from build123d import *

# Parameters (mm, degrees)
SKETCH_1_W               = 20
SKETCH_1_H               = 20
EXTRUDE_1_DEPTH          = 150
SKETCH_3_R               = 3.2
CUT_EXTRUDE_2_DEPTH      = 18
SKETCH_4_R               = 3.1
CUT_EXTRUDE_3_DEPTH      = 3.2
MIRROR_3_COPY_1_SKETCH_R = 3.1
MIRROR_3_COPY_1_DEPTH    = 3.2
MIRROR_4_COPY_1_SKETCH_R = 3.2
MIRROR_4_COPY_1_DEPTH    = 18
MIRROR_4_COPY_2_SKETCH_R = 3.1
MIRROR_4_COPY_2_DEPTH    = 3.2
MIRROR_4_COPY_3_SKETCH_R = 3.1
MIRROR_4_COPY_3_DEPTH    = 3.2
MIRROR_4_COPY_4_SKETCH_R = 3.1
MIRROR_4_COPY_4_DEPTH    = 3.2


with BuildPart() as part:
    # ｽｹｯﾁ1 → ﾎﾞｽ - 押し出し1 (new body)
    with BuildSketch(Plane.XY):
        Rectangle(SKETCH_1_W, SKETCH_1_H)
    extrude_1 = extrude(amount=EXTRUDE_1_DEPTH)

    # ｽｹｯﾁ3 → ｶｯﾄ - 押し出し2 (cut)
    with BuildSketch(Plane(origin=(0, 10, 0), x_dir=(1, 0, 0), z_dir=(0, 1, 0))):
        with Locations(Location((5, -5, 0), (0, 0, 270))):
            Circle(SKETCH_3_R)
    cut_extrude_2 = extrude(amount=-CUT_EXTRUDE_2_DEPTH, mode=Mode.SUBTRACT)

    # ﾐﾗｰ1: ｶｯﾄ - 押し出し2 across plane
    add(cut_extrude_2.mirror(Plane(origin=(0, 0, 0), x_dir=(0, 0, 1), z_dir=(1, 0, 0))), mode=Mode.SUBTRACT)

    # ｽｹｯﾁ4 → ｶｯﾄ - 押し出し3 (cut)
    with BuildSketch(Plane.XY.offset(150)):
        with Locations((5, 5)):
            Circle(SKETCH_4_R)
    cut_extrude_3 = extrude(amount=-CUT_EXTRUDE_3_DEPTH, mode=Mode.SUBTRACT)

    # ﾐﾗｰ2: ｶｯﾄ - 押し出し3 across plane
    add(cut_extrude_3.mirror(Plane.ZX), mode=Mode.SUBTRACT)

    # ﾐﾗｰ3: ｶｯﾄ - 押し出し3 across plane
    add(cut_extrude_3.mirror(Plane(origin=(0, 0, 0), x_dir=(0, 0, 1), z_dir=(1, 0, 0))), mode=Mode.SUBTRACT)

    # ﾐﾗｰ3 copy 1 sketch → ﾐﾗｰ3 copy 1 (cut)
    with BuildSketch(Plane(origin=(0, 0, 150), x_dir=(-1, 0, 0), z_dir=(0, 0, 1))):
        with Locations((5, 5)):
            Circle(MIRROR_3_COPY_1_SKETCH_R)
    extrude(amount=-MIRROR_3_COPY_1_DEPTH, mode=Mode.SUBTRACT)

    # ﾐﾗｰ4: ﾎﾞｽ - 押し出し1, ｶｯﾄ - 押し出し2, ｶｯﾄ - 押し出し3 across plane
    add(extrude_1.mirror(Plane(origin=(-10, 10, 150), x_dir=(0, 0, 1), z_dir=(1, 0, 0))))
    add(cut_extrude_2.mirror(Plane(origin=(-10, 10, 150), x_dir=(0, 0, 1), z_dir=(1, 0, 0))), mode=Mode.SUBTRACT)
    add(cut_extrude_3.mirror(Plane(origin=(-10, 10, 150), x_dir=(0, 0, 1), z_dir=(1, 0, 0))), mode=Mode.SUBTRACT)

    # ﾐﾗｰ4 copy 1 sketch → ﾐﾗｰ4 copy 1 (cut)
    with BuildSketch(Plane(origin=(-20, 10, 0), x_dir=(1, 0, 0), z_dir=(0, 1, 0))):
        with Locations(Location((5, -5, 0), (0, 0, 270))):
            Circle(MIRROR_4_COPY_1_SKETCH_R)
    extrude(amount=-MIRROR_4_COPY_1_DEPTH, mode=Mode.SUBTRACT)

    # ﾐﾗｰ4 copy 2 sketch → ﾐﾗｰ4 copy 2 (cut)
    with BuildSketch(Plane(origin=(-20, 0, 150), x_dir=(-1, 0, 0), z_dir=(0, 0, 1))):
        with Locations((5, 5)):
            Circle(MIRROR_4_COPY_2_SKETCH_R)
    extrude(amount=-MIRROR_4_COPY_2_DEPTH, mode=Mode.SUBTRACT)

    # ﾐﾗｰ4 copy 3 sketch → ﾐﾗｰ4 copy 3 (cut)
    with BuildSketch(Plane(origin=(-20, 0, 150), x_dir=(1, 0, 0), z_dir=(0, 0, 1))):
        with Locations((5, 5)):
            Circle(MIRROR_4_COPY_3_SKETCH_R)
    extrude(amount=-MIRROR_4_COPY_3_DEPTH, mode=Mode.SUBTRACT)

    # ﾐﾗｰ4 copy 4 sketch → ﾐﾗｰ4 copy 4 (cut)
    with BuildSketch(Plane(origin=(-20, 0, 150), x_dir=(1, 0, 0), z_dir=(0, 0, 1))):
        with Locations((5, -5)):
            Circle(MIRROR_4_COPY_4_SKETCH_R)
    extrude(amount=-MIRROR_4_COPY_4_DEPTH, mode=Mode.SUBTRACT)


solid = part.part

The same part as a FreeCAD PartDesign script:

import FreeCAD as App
import Part
import Sketcher

V = App.Vector


def add_polygon(sketch, points):
    """Adds a closed chain of lines whose ends are joined by coincident constraints."""
    first, n = sketch.GeometryCount, len(points)
    for a, b in zip(points, points[1:] + points[:1]):
        sketch.addGeometry(Part.LineSegment(App.Vector(*a, 0), App.Vector(*b, 0)), False)
    for i in range(n):
        sketch.addConstraint(Sketcher.Constraint("Coincident", first + i, 2, first + (i + 1) % n, 1))

doc = App.newDocument("Part")
params = doc.addObject("Spreadsheet::Sheet", "Params")
for row, (alias, value) in enumerate([
    ("sketch1_width", "20 mm"),
    ("pad1_length", "150 mm"),
    ("sketch2_diameter", "6.4 mm"),
    ("pocket1_length", "18 mm"),
    ("sketch3_diameter", "6.2 mm"),
    ("pocket2_length", "3.2 mm"),
    ("sketch4_diameter", "6.2 mm"),
    ("pocket3_length", "3.2 mm"),
    ("sketch5_diameter", "6.4 mm"),
    ("pocket4_length", "18 mm"),
    ("sketch6_diameter", "6.2 mm"),
    ("pocket5_length", "3.2 mm"),
    ("sketch7_diameter", "6.2 mm"),
    ("pocket6_length", "3.2 mm"),
    ("sketch8_diameter", "6.2 mm"),
    ("pocket7_length", "3.2 mm"),
], start=1):
    params.set(f"A{row}", alias)
    params.set(f"B{row}", "=" + value)
    params.setAlias(f"B{row}", alias)

body = doc.addObject("PartDesign::Body", "Body")

sketch1 = doc.addObject("Sketcher::SketchObject", "Sketch")
body.addObject(sketch1)
sketch1.AttachmentSupport = (doc.XY_Plane, [""])
sketch1.MapMode = "FlatFace"
add_polygon(sketch1, [(-10, 10), (-10, -10), (10, -10), (10, 10)])
sketch1.addConstraint(Sketcher.Constraint("Vertical", 0))
sketch1.addConstraint(Sketcher.Constraint("Horizontal", 1))
sketch1.addConstraint(Sketcher.Constraint("Vertical", 2))
sketch1.addConstraint(Sketcher.Constraint("Horizontal", 3))
sketch1.addConstraint(Sketcher.Constraint("Symmetric", 0, 2, 2, 2, -1, 1))
sketch1.addConstraint(Sketcher.Constraint("Equal", 3, 0))
sketch1.addConstraint(Sketcher.Constraint("DistanceX", 1, 1, 1, 2, 20.0))
sketch1.setExpression("Constraints[10]", "Params.sketch1_width")
pad1 = doc.addObject("PartDesign::Pad", "Pad")
body.addObject(pad1)
pad1.Profile = sketch1
pad1.setExpression("Length", "Params.pad1_length")

sketch2 = doc.addObject("Sketcher::SketchObject", "Sketch001")
body.addObject(sketch2)
sketch2.AttachmentSupport = (doc.XZ_Plane, [""])
sketch2.MapMode = "FlatFace"
sketch2.AttachmentOffset = App.Placement(V(0, 0, -10), App.Rotation())
sketch2.addGeometry(Part.Circle(V(5, 5, 0), V(0, 0, 1), 3.2), False)
sketch2.addConstraint(Sketcher.Constraint("Diameter", 0, 6.4))
sketch2.addConstraint(Sketcher.Constraint("DistanceX", -1, 1, 0, 3, 5.0))
sketch2.addConstraint(Sketcher.Constraint("DistanceY", -1, 1, 0, 3, 5.0))
sketch2.setExpression("Constraints[0]", "Params.sketch2_diameter")
pocket1 = doc.addObject("PartDesign::Pocket", "Pocket")
body.addObject(pocket1)
pocket1.Profile = sketch2
pocket1.setExpression("Length", "Params.pocket1_length")
pocket1.Reversed = True
doc.recompute()

mirrored = doc.addObject("PartDesign::Mirrored", "Mirrored")
body.addObject(mirrored)
mirrored.Originals = [pocket1]
mirrored.MirrorPlane = (doc.YZ_Plane, [""])
body.Tip = mirrored

sketch3 = doc.addObject("Sketcher::SketchObject", "Sketch002")
body.addObject(sketch3)
sketch3.AttachmentSupport = (doc.XY_Plane, [""])
sketch3.MapMode = "FlatFace"
sketch3.AttachmentOffset = App.Placement(V(0, 0, 150), App.Rotation())
sketch3.addGeometry(Part.Circle(V(5, 5, 0), V(0, 0, 1), 3.1), False)
sketch3.addConstraint(Sketcher.Constraint("Diameter", 0, 6.2))
sketch3.addConstraint(Sketcher.Constraint("DistanceX", -1, 1, 0, 3, 5.0))
sketch3.addConstraint(Sketcher.Constraint("DistanceY", -1, 1, 0, 3, 5.0))
sketch3.setExpression("Constraints[0]", "Params.sketch3_diameter")
pocket2 = doc.addObject("PartDesign::Pocket", "Pocket001")
body.addObject(pocket2)
pocket2.Profile = sketch3
pocket2.setExpression("Length", "Params.pocket2_length")
doc.recompute()

mirrored2 = doc.addObject("PartDesign::Mirrored", "Mirrored001")
body.addObject(mirrored2)
mirrored2.Originals = [pocket2]
mirrored2.MirrorPlane = (doc.XZ_Plane, [""])
body.Tip = mirrored2
doc.recompute()

mirrored3 = doc.addObject("PartDesign::Mirrored", "Mirrored002")
body.addObject(mirrored3)
mirrored3.Originals = [pocket2]
mirrored3.MirrorPlane = (doc.YZ_Plane, [""])
body.Tip = mirrored3

sketch4 = doc.addObject("Sketcher::SketchObject", "Sketch003")
body.addObject(sketch4)
sketch4.AttachmentSupport = (doc.XY_Plane, [""])
sketch4.MapMode = "FlatFace"
sketch4.AttachmentOffset = App.Placement(V(0, 0, 150), App.Rotation())
sketch4.addGeometry(Part.Circle(V(-5, -5, 0), V(0, 0, 1), 3.1), False)
sketch4.addConstraint(Sketcher.Constraint("Diameter", 0, 6.2))
sketch4.addConstraint(Sketcher.Constraint("DistanceX", 0, 3, -1, 1, 5.0))
sketch4.addConstraint(Sketcher.Constraint("DistanceY", 0, 3, -1, 1, 5.0))
sketch4.setExpression("Constraints[0]", "Params.sketch4_diameter")
pocket3 = doc.addObject("PartDesign::Pocket", "Pocket002")
body.addObject(pocket3)
pocket3.Profile = sketch4
pocket3.setExpression("Length", "Params.pocket3_length")
doc.recompute()

datumplane = doc.addObject("PartDesign::Plane", "DatumPlane")
body.addObject(datumplane)
datumplane.AttachmentSupport = (doc.YZ_Plane, [""])
datumplane.MapMode = "FlatFace"
datumplane.AttachmentOffset = App.Placement(V(0, 0, -10), App.Rotation())
mirrored4 = doc.addObject("PartDesign::Mirrored", "Mirrored003")
body.addObject(mirrored4)
mirrored4.Originals = [pad1, pocket1, pocket2]
mirrored4.MirrorPlane = (datumplane, [""])
body.Tip = mirrored4

sketch5 = doc.addObject("Sketcher::SketchObject", "Sketch004")
body.addObject(sketch5)
sketch5.AttachmentSupport = (doc.XZ_Plane, [""])
sketch5.MapMode = "FlatFace"
sketch5.AttachmentOffset = App.Placement(V(0, 0, -10), App.Rotation())
sketch5.addGeometry(Part.Circle(V(-15, 5, 0), V(0, 0, 1), 3.2), False)
sketch5.addConstraint(Sketcher.Constraint("Diameter", 0, 6.4))
sketch5.addConstraint(Sketcher.Constraint("DistanceX", 0, 3, -1, 1, 15.0))
sketch5.addConstraint(Sketcher.Constraint("DistanceY", -1, 1, 0, 3, 5.0))
sketch5.setExpression("Constraints[0]", "Params.sketch5_diameter")
pocket4 = doc.addObject("PartDesign::Pocket", "Pocket003")
body.addObject(pocket4)
pocket4.Profile = sketch5
pocket4.setExpression("Length", "Params.pocket4_length")
pocket4.Reversed = True

sketch6 = doc.addObject("Sketcher::SketchObject", "Sketch005")
body.addObject(sketch6)
sketch6.AttachmentSupport = (doc.XY_Plane, [""])
sketch6.MapMode = "FlatFace"
sketch6.AttachmentOffset = App.Placement(V(0, 0, 150), App.Rotation())
sketch6.addGeometry(Part.Circle(V(-25, -5, 0), V(0, 0, 1), 3.1), False)
sketch6.addConstraint(Sketcher.Constraint("Diameter", 0, 6.2))
sketch6.addConstraint(Sketcher.Constraint("DistanceX", 0, 3, -1, 1, 25.0))
sketch6.addConstraint(Sketcher.Constraint("DistanceY", 0, 3, -1, 1, 5.0))
sketch6.setExpression("Constraints[0]", "Params.sketch6_diameter")
pocket5 = doc.addObject("PartDesign::Pocket", "Pocket004")
body.addObject(pocket5)
pocket5.Profile = sketch6
pocket5.setExpression("Length", "Params.pocket5_length")

sketch7 = doc.addObject("Sketcher::SketchObject", "Sketch006")
body.addObject(sketch7)
sketch7.AttachmentSupport = (doc.XY_Plane, [""])
sketch7.MapMode = "FlatFace"
sketch7.AttachmentOffset = App.Placement(V(0, 0, 150), App.Rotation())
sketch7.addGeometry(Part.Circle(V(-15, 5, 0), V(0, 0, 1), 3.1), False)
sketch7.addConstraint(Sketcher.Constraint("Diameter", 0, 6.2))
sketch7.addConstraint(Sketcher.Constraint("DistanceX", 0, 3, -1, 1, 15.0))
sketch7.addConstraint(Sketcher.Constraint("DistanceY", -1, 1, 0, 3, 5.0))
sketch7.setExpression("Constraints[0]", "Params.sketch7_diameter")
pocket6 = doc.addObject("PartDesign::Pocket", "Pocket005")
body.addObject(pocket6)
pocket6.Profile = sketch7
pocket6.setExpression("Length", "Params.pocket6_length")

sketch8 = doc.addObject("Sketcher::SketchObject", "Sketch007")
body.addObject(sketch8)
sketch8.AttachmentSupport = (doc.XY_Plane, [""])
sketch8.MapMode = "FlatFace"
sketch8.AttachmentOffset = App.Placement(V(0, 0, 150), App.Rotation())
sketch8.addGeometry(Part.Circle(V(-15, -5, 0), V(0, 0, 1), 3.1), False)
sketch8.addConstraint(Sketcher.Constraint("Diameter", 0, 6.2))
sketch8.addConstraint(Sketcher.Constraint("DistanceX", 0, 3, -1, 1, 15.0))
sketch8.addConstraint(Sketcher.Constraint("DistanceY", 0, 3, -1, 1, 5.0))
sketch8.setExpression("Constraints[0]", "Params.sketch8_diameter")
pocket7 = doc.addObject("PartDesign::Pocket", "Pocket006")
body.addObject(pocket7)
pocket7.Profile = sketch8
pocket7.setExpression("Length", "Params.pocket7_length")

doc.recompute()
